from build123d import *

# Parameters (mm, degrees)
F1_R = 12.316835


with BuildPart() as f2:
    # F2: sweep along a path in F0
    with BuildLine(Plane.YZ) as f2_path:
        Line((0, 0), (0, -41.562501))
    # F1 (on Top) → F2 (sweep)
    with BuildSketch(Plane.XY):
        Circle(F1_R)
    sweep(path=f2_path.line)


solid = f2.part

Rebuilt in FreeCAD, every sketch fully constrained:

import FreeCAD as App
import Part
import Sketcher
Q = App.Units.Quantity

doc = App.newDocument("Part")
body = doc.addObject("PartDesign::Body", "Body")

sketch1 = doc.addObject("Sketcher::SketchObject", "Sketch")
body.addObject(sketch1)
sketch1.AttachmentSupport = (doc.XY_Plane, [""])
sketch1.MapMode = "FlatFace"
sketch1.addGeometry(Part.Circle(App.Vector(0, 0, 0), App.Vector(0, 0, 1), 12), False)
sketch1.addConstraint(Sketcher.Constraint("Coincident", 0, 3, -1, 1))
sketch1.addConstraint(Sketcher.Constraint("Diameter", 0, Q("24.63367 mm")))

sketch2 = doc.addObject("Sketcher::SketchObject", "Sketch001")
body.addObject(sketch2)
sketch2.AttachmentSupport = (doc.XZ_Plane, [""])
sketch2.MapMode = "FlatFace"
sketch2.addGeometry(Part.LineSegment(App.Vector(0, 0, 0), App.Vector(0, -42, 0)), False)
sketch2.addConstraint(Sketcher.Constraint("Vertical", 0))
sketch2.addConstraint(Sketcher.Constraint("Coincident", 0, 1, -1, 1))
sketch2.addConstraint(Sketcher.Constraint("DistanceY", 0, 2, 0, 1, Q("41.562501 mm")))
doc.recompute()

additivepipe = doc.addObject("PartDesign::AdditivePipe", "AdditivePipe")
body.addObject(additivepipe)
additivepipe.Profile = sketch1
additivepipe.Spine = (sketch2, ["Edge1"])

doc.recompute()
